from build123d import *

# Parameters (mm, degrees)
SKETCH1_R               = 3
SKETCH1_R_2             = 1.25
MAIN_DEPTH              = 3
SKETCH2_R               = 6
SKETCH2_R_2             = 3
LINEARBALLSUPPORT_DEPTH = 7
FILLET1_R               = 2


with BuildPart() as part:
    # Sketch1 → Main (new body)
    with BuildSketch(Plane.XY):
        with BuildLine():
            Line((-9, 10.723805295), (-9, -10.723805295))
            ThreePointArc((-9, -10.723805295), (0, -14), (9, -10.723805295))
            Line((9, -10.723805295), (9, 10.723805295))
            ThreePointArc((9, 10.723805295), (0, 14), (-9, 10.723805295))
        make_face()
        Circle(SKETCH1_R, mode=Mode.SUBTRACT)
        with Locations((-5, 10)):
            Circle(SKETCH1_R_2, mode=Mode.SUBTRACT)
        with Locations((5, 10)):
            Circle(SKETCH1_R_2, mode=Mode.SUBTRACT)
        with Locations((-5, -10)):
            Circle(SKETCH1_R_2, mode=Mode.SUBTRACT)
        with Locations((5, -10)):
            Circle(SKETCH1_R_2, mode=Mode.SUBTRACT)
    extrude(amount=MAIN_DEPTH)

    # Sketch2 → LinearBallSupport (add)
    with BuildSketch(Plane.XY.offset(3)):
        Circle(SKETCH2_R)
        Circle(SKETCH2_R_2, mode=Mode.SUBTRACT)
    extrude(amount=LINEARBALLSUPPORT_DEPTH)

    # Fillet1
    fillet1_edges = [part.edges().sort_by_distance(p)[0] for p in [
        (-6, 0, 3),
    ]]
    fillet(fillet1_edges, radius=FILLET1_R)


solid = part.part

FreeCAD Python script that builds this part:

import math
import FreeCAD as App
import Part
import Sketcher
Q = App.Units.Quantity


def edges_at(feature, points):
    """Names of the edges that pass closest to the given points."""
    edges = feature.Shape.Edges
    near = lambda p: min(range(len(edges)), key=lambda i: edges[i].distToShape(Part.Vertex(*p))[0])
    return sorted({f"Edge{near(p) + 1}" for p in points})

doc = App.newDocument("Part")
body = doc.addObject("PartDesign::Body", "Body")

sketch1 = doc.addObject("Sketcher::SketchObject", "Sketch")
body.addObject(sketch1)
sketch1.AttachmentSupport = (doc.XY_Plane, [""])
sketch1.MapMode = "FlatFace"
sketch1.addGeometry(Part.LineSegment(App.Vector(-9, 10.723805, 0), App.Vector(-9, -10.723805, 0)), False)
sketch1.addGeometry(Part.ArcOfCircle(Part.Circle(App.Vector(0, 0, 0), App.Vector(0, 0, 1), 14), math.radians(-130.005201), math.radians(-49.994799)), False)
sketch1.addGeometry(Part.LineSegment(App.Vector(9, -10.723805, 0), App.Vector(9, 10.723805, 0)), False)
sketch1.addGeometry(Part.ArcOfCircle(Part.Circle(App.Vector(0, 0, 0), App.Vector(0, 0, 1), 14), math.radians(49.994799), math.radians(130.005201)), False)
sketch1.addGeometry(Part.Circle(App.Vector(-5, -10, 0), App.Vector(0, 0, 1), 1.25), False)
sketch1.addGeometry(Part.Circle(App.Vector(5, -10, 0), App.Vector(0, 0, 1), 1.25), False)
sketch1.addGeometry(Part.Circle(App.Vector(-5, 10, 0), App.Vector(0, 0, 1), 1.25), False)
sketch1.addGeometry(Part.Circle(App.Vector(0, 0, 0), App.Vector(0, 0, 1), 3), False)
sketch1.addGeometry(Part.Circle(App.Vector(5, 10, 0), App.Vector(0, 0, 1), 1.25), False)
sketch1.addConstraint(Sketcher.Constraint("Coincident", 0, 2, 1, 1))
sketch1.addConstraint(Sketcher.Constraint("Coincident", 1, 2, 2, 1))
sketch1.addConstraint(Sketcher.Constraint("Coincident", 2, 2, 3, 1))
sketch1.addConstraint(Sketcher.Constraint("Coincident", 3, 2, 0, 1))
sketch1.addConstraint(Sketcher.Constraint("Vertical", 0))
sketch1.addConstraint(Sketcher.Constraint("Vertical", 2))
sketch1.addConstraint(Sketcher.Constraint("Coincident", 1, 3, -1, 1))
sketch1.addConstraint(Sketcher.Constraint("Coincident", 3, 3, -1, 1))
sketch1.addConstraint(Sketcher.Constraint("Coincident", 7, 3, -1, 1))
sketch1.addConstraint(Sketcher.Constraint("Equal", 1, 3))
sketch1.addConstraint(Sketcher.Constraint("Equal", 4, 5))
sketch1.addConstraint(Sketcher.Constraint("Equal", 5, 6))
sketch1.addConstraint(Sketcher.Constraint("Equal", 6, 8))
sketch1.addConstraint(Sketcher.Constraint("Symmetric", 5, 3, 6, 3, -1, 1))
sketch1.addConstraint(Sketcher.Constraint("Symmetric", 4, 3, 8, 3, -1, 1))
sketch1.addConstraint(Sketcher.Constraint("Symmetric", 4, 3, 5, 3, -2))
sketch1.addConstraint(Sketcher.Constraint("Horizontal", 0, 2, 1, 2))
sketch1.addConstraint(Sketcher.Constraint("Diameter", 7, Q("6 mm")))
sketch1.addConstraint(Sketcher.Constraint("Radius", 1, Q("14 mm")))
sketch1.addConstraint(Sketcher.Constraint("Diameter", 4, Q("2.5 mm")))
sketch1.addConstraint(Sketcher.Constraint("DistanceX", 4, 3, -1, 1, Q("5 mm")))
sketch1.addConstraint(Sketcher.Constraint("DistanceY", 4, 3, -1, 1, Q("10 mm")))
sketch1.addConstraint(Sketcher.Constraint("DistanceX", 0, 2, -1, 1, Q("9 mm")))
pad1 = doc.addObject("PartDesign::Pad", "Pad")
body.addObject(pad1)
pad1.Profile = sketch1
pad1.Length = 3

sketch2 = doc.addObject("Sketcher::SketchObject", "Sketch001")
body.addObject(sketch2)
sketch2.AttachmentSupport = (doc.XY_Plane, [""])
sketch2.MapMode = "FlatFace"
sketch2.AttachmentOffset = App.Placement(App.Vector(0, 0, 3), App.Rotation())
sketch2.addGeometry(Part.Circle(App.Vector(0, 0, 0), App.Vector(0, 0, 1), 6), False)
sketch2.addGeometry(Part.Circle(App.Vector(0, 0, 0), App.Vector(0, 0, 1), 3), False)
sketch2.addConstraint(Sketcher.Constraint("Coincident", 0, 3, -1, 1))
sketch2.addConstraint(Sketcher.Constraint("Coincident", 1, 3, -1, 1))
sketch2.addConstraint(Sketcher.Constraint("Diameter", 0, Q("12 mm")))
sketch2.addConstraint(Sketcher.Constraint("Diameter", 1, Q("6 mm")))
pad2 = doc.addObject("PartDesign::Pad", "Pad001")
body.addObject(pad2)
pad2.Profile = sketch2
pad2.Length = 7
doc.recompute()

fillet = doc.addObject("PartDesign::Fillet", "Fillet")
body.addObject(fillet)
fillet.Base = (pad2, edges_at(pad2, [(-6, 0, 3)]))
fillet.Radius = 2

doc.recompute()
